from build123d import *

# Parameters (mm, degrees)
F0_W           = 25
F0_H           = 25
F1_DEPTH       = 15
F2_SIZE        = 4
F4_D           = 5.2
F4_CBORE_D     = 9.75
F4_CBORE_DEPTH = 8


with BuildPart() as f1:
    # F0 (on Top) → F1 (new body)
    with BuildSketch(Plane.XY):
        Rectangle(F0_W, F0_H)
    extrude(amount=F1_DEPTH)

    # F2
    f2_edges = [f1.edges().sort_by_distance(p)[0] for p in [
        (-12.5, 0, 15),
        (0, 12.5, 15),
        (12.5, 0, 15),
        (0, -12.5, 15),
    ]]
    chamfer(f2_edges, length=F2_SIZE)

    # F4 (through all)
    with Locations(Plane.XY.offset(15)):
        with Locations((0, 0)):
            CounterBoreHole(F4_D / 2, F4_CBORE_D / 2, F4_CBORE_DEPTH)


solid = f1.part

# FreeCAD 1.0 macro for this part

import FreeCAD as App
import Part
import Sketcher

V = App.Vector


def edges_at(feature, points):
    """Names of the edges that pass closest to the given points."""
    edges = feature.Shape.Edges
    near = lambda p: min(range(len(edges)), key=lambda i: edges[i].distToShape(Part.Vertex(*p))[0])
    return sorted({f"Edge{near(p) + 1}" for p in points})

doc = App.newDocument("Part")
body = doc.addObject("PartDesign::Body", "Body")

sketch1 = doc.addObject("Sketcher::SketchObject", "Sketch")
body.addObject(sketch1)
sketch1.AttachmentSupport = (doc.XY_Plane, [""])
sketch1.MapMode = "FlatFace"
sketch1.addGeometry([
    Part.LineSegment(V(-12, 12, 0), V(-12, -12, 0)),
    Part.LineSegment(V(-12, -12, 0), V(12, -12, 0)),
    Part.LineSegment(V(12, -12, 0), V(12, 12, 0)),
    Part.LineSegment(V(12, 12, 0), V(-12, 12, 0)),
], False)
sketch1.addConstraint([
    Sketcher.Constraint("Coincident", 0, 2, 1, 1),
    Sketcher.Constraint("Coincident", 1, 2, 2, 1),
    Sketcher.Constraint("Coincident", 2, 2, 3, 1),
    Sketcher.Constraint("Coincident", 3, 2, 0, 1),
    Sketcher.Constraint("Vertical", 0),
    Sketcher.Constraint("Horizontal", 1),
    Sketcher.Constraint("Vertical", 2),
    Sketcher.Constraint("Horizontal", 3),
    Sketcher.Constraint("Symmetric", 0, 2, 2, 2, -1, 1),
    Sketcher.Constraint("Equal", 3, 0),
    Sketcher.Constraint("DistanceX", 1, 1, 1, 2, 25.0),
])
pad1 = doc.addObject("PartDesign::Pad", "Pad")
body.addObject(pad1)
pad1.Profile = sketch1
pad1.Length = 15
doc.recompute()

chamfer = doc.addObject("PartDesign::Chamfer", "Chamfer")
body.addObject(chamfer)
chamfer.Base = (pad1, edges_at(pad1, [
    (-12.5, 0, 15),
    (0, 12.5, 15),
    (12.5, 0, 15),
    (0, -12.5, 15),
]))
chamfer.Size = 4

sketch2 = doc.addObject("Sketcher::SketchObject", "Sketch001")
body.addObject(sketch2)
sketch2.AttachmentSupport = (doc.XY_Plane, [""])
sketch2.MapMode = "FlatFace"
sketch2.AttachmentOffset = App.Placement(V(0, 0, 15), App.Rotation())
sketch2.addGeometry(Part.Circle(V(0, 0, 0), V(0, 0, 1), 2.6), False)
sketch2.addConstraint([
    Sketcher.Constraint("Coincident", 0, 3, -1, 1),
    Sketcher.Constraint("Diameter", 0, 5.2),
])
doc.recompute()
hole = doc.addObject("PartDesign::Hole", "Hole")
body.addObject(hole)
hole.Profile = sketch2
hole.ThreadType = "None"
hole.Diameter = 5.2
hole.DepthType = "ThroughAll"
hole.HoleCutType = "Counterbore"
hole.HoleCutDiameter = 9.75
hole.HoleCutDepth = 8

doc.recompute()
